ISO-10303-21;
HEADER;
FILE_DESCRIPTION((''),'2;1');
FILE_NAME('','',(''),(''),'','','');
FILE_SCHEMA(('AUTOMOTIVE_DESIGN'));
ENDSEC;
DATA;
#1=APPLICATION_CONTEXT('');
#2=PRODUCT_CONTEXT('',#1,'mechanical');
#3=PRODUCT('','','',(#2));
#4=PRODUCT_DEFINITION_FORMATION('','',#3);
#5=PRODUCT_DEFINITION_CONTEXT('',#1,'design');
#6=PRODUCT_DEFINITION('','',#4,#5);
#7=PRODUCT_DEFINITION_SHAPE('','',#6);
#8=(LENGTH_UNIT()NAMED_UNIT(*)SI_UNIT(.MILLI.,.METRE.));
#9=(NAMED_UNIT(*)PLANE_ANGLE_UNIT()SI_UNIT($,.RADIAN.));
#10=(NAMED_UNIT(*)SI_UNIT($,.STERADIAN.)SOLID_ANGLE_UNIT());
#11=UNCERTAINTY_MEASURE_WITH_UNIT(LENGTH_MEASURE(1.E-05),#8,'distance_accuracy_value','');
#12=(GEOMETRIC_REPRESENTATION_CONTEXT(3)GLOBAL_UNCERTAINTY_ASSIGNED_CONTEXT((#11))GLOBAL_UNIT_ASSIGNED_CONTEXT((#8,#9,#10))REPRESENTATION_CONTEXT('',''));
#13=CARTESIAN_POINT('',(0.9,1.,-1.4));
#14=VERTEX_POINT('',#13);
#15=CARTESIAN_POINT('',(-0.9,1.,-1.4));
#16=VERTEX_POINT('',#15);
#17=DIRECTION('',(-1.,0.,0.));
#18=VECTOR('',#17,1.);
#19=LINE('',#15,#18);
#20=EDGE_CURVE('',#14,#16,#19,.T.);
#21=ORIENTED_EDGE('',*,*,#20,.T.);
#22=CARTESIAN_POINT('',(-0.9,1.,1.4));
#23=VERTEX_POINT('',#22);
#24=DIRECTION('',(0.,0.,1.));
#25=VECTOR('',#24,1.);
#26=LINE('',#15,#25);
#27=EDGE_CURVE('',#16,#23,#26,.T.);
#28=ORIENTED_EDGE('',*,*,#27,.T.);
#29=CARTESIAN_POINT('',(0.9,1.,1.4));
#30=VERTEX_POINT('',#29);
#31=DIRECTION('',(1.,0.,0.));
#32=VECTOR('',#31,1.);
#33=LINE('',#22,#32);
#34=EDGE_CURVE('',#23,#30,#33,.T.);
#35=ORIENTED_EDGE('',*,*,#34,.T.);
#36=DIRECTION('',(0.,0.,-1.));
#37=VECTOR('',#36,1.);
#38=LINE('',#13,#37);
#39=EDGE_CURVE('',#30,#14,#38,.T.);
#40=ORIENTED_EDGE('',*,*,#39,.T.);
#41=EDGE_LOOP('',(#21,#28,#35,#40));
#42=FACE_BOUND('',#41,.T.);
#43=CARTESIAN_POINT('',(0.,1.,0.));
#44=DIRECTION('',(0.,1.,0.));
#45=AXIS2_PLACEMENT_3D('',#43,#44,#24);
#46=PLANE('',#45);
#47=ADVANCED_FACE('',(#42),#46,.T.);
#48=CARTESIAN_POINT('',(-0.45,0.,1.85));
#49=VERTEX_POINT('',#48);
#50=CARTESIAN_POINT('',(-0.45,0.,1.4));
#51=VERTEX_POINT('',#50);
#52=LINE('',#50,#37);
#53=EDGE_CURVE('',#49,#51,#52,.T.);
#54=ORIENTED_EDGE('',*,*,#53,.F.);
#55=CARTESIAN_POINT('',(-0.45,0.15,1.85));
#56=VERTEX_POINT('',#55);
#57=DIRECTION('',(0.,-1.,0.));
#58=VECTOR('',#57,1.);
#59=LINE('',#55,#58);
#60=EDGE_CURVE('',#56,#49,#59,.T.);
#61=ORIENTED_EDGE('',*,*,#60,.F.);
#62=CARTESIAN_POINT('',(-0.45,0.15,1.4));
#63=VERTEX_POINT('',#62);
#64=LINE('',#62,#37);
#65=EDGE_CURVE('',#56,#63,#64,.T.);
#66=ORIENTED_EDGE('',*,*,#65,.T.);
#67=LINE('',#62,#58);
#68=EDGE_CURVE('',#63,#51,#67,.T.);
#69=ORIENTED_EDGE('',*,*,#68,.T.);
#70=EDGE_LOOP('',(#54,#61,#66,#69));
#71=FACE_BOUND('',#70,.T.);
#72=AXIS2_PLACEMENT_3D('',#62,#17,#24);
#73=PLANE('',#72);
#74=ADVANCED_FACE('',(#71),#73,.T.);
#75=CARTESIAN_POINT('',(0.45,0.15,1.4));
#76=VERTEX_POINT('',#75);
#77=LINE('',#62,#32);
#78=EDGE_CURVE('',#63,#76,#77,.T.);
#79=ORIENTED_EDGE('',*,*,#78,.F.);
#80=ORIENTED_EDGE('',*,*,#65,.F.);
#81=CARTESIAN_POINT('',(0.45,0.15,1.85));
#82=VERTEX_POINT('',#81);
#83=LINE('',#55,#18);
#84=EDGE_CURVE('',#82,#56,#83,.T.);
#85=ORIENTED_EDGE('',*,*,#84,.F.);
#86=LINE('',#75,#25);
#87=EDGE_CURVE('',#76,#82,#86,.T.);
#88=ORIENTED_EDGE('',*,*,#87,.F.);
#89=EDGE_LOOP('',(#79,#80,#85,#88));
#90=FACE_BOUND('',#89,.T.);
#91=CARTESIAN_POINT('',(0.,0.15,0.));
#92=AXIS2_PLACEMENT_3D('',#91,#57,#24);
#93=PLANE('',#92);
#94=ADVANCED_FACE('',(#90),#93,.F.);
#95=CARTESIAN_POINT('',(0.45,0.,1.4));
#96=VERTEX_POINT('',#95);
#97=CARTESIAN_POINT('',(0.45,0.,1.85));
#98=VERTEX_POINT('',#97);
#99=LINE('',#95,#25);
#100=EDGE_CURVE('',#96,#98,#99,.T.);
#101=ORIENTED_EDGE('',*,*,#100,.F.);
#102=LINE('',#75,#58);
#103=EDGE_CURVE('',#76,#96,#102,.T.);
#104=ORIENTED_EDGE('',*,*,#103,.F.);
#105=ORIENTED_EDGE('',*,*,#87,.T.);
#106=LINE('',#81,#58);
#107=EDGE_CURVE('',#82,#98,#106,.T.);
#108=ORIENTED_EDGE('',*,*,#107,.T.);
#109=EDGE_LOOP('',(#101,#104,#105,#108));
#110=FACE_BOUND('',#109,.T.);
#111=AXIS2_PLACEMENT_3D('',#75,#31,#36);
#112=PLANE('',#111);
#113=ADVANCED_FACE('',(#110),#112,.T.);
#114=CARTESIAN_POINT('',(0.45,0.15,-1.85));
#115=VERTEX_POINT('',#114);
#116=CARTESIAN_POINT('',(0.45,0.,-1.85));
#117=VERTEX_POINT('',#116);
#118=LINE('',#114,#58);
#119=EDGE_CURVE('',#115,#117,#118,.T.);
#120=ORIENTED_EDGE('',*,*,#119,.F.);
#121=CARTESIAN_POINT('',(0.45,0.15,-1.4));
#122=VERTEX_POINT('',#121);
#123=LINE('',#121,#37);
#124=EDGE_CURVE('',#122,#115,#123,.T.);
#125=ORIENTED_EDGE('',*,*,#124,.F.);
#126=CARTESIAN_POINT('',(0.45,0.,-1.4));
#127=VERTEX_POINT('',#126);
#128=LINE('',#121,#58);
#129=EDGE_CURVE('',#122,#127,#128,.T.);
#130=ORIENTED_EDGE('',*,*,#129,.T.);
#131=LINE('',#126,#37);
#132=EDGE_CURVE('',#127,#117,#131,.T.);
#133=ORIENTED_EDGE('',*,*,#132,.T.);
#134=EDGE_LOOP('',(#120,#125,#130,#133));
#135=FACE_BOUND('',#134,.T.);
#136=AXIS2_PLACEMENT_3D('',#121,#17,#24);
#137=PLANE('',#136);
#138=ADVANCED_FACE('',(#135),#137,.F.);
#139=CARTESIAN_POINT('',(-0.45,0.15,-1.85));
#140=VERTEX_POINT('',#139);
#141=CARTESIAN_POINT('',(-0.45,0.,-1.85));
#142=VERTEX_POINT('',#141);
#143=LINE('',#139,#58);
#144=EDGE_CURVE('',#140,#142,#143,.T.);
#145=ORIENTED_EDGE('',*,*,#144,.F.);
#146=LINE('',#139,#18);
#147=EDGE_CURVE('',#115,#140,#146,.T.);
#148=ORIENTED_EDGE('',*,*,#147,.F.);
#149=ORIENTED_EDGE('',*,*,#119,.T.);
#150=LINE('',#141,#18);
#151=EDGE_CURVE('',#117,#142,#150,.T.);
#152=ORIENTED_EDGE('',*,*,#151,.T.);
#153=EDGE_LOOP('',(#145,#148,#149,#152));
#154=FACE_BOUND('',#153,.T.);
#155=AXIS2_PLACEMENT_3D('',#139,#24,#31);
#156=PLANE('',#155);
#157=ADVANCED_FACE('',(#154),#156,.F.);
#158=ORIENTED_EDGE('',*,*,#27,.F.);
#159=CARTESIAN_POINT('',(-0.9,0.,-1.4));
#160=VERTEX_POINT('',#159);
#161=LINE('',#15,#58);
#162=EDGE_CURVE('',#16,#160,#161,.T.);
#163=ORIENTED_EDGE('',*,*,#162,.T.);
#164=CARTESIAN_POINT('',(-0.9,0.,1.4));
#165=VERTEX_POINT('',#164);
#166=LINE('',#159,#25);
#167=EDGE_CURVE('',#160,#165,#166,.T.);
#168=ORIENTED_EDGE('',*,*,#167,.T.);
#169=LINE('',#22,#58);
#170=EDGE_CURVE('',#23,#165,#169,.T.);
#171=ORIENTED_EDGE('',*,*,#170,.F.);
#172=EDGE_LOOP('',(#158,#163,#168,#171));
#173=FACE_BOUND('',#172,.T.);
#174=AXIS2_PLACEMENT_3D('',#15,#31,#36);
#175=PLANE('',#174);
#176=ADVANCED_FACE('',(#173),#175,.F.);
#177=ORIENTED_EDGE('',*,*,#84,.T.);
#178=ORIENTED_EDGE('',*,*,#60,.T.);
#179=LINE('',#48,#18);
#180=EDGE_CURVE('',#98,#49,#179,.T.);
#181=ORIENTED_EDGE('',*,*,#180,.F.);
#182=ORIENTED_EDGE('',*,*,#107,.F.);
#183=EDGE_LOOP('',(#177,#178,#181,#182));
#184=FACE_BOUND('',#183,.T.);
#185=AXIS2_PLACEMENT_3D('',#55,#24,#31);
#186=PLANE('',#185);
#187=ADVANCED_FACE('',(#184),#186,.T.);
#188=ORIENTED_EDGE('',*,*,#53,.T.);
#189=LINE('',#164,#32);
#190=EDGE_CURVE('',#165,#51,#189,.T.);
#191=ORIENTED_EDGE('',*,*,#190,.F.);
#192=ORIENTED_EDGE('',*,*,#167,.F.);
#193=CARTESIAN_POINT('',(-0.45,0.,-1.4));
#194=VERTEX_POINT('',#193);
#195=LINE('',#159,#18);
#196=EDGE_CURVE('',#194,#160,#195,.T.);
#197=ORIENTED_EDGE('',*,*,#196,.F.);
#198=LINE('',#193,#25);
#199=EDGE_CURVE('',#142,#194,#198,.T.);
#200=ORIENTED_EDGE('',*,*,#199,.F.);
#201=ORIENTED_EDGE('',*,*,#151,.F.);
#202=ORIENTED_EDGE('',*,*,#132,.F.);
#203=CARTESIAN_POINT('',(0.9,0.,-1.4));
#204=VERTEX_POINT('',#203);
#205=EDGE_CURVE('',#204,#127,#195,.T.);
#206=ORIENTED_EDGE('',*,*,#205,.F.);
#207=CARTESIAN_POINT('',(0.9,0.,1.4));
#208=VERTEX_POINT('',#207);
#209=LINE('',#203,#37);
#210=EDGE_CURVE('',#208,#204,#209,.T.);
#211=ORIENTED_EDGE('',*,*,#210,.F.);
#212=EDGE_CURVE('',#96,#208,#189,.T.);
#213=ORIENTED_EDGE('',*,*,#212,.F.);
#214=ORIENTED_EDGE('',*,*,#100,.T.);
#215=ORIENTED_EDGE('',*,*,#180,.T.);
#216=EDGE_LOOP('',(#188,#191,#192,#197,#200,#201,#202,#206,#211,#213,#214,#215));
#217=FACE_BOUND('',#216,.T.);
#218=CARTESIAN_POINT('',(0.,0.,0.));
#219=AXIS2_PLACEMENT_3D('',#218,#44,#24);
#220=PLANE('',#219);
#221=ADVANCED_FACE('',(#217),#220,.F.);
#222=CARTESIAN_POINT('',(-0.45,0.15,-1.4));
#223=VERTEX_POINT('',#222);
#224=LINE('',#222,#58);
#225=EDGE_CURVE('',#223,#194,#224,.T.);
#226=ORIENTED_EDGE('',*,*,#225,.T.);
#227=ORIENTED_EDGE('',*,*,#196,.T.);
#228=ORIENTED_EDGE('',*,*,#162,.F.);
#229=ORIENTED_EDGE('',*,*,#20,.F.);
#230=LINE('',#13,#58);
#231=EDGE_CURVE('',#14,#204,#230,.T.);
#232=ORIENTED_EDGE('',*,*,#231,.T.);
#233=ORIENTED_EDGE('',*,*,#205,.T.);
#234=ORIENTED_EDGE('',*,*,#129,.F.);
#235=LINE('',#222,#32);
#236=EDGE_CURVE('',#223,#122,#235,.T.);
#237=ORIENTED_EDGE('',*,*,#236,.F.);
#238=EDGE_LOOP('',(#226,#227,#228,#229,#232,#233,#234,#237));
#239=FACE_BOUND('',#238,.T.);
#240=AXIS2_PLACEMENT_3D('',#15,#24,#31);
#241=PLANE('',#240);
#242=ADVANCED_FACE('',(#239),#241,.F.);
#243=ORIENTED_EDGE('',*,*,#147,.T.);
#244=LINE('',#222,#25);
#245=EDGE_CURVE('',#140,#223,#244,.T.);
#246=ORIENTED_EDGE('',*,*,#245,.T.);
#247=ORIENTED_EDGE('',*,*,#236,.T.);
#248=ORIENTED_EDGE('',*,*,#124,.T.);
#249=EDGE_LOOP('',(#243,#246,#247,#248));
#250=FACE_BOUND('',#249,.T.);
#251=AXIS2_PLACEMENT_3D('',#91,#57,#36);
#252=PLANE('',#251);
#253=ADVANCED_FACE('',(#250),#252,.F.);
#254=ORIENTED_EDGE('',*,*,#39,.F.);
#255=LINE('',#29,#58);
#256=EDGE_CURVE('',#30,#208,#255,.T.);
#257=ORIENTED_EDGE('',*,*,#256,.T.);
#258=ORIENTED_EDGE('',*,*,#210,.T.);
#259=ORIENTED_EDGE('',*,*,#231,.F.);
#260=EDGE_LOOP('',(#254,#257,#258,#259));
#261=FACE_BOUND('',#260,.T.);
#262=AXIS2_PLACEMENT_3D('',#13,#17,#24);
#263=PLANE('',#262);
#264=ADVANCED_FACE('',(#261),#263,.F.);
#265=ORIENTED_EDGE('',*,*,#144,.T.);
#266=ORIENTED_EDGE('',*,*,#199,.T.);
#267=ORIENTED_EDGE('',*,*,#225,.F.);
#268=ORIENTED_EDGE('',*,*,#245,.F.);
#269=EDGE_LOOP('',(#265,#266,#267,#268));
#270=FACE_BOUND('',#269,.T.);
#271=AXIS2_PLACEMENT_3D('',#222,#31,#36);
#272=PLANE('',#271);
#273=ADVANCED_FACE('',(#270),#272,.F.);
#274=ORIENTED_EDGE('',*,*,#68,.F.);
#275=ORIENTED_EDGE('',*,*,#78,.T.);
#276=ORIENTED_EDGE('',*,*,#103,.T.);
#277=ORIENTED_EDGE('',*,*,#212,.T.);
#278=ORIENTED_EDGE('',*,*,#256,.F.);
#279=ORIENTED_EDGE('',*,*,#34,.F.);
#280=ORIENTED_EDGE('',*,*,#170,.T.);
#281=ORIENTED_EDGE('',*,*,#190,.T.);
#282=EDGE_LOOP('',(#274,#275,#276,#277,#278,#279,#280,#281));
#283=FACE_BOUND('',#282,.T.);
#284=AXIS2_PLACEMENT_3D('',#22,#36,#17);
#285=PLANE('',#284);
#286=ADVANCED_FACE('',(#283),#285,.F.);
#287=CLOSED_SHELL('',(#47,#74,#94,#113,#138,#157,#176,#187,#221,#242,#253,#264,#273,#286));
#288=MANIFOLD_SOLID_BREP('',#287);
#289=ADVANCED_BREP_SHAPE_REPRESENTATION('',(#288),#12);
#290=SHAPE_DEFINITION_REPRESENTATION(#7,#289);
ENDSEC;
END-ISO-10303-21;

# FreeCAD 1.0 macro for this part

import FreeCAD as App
import Part
import Sketcher
Q = App.Units.Quantity

doc = App.newDocument("Part")
params = doc.addObject("Spreadsheet::Sheet", "Params")
for row, (alias, value) in enumerate([
    ("sketch1_width", "1.8 mm"),
    ("sketch1_height", "2.8 mm"),
    ("pad1_length", "1 mm"),
    ("sketch2_width", "0.9 mm"),
    ("sketch2_height", "0.45 mm"),
    ("pad2_length", "0.15 mm"),
], start=1):
    params.set(f"A{row}", alias)
    params.set(f"B{row}", "=" + value)
    params.setAlias(f"B{row}", alias)

body = doc.addObject("PartDesign::Body", "Body")

# Sketch on XZ plane
sketch1 = doc.addObject("Sketcher::SketchObject", "Sketch")
body.addObject(sketch1)
sketch1.AttachmentSupport = (doc.XZ_Plane, [""])
sketch1.MapMode = "FlatFace"
sketch1.addGeometry(Part.LineSegment(App.Vector(-0.9, -1.4, 0), App.Vector(-0.9, 1.4, 0)), False)
sketch1.addGeometry(Part.LineSegment(App.Vector(-0.9, 1.4, 0), App.Vector(0.9, 1.4, 0)), False)
sketch1.addGeometry(Part.LineSegment(App.Vector(0.9, 1.4, 0), App.Vector(0.9, -1.4, 0)), False)
sketch1.addGeometry(Part.LineSegment(App.Vector(0.9, -1.4, 0), App.Vector(-0.9, -1.4, 0)), False)
sketch1.addConstraint(Sketcher.Constraint("Coincident", 0, 2, 1, 1))
sketch1.addConstraint(Sketcher.Constraint("Coincident", 1, 2, 2, 1))
sketch1.addConstraint(Sketcher.Constraint("Coincident", 2, 2, 3, 1))
sketch1.addConstraint(Sketcher.Constraint("Coincident", 3, 2, 0, 1))
sketch1.addConstraint(Sketcher.Constraint("Vertical", 0))
sketch1.addConstraint(Sketcher.Constraint("Horizontal", 1))
sketch1.addConstraint(Sketcher.Constraint("Vertical", 2))
sketch1.addConstraint(Sketcher.Constraint("Horizontal", 3))
sketch1.addConstraint(Sketcher.Constraint("Symmetric", 0, 2, 2, 2, -1, 1))
sketch1.addConstraint(Sketcher.Constraint("DistanceX", 1, 1, 1, 2, Q("1.8 mm")))
sketch1.addConstraint(Sketcher.Constraint("DistanceY", 0, 1, 0, 2, Q("2.8 mm")))
sketch1.setExpression("Constraints[9]", "Params.sketch1_width")
sketch1.setExpression("Constraints[10]", "Params.sketch1_height")
pad1 = doc.addObject("PartDesign::Pad", "Pad")
body.addObject(pad1)
pad1.Profile = sketch1
pad1.setExpression("Length", "Params.pad1_length")
pad1.Reversed = True

# Sketch on XZ plane
sketch2 = doc.addObject("Sketcher::SketchObject", "Sketch001")
body.addObject(sketch2)
sketch2.AttachmentSupport = (doc.XZ_Plane, [""])
sketch2.MapMode = "FlatFace"
sketch2.addGeometry(Part.LineSegment(App.Vector(-0.45, -1.85, 0), App.Vector(-0.45, -1.4, 0)), False)
sketch2.addGeometry(Part.LineSegment(App.Vector(-0.45, -1.4, 0), App.Vector(0.45, -1.4, 0)), False)
sketch2.addGeometry(Part.LineSegment(App.Vector(0.45, -1.4, 0), App.Vector(0.45, -1.85, 0)), False)
sketch2.addGeometry(Part.LineSegment(App.Vector(0.45, -1.85, 0), App.Vector(-0.45, -1.85, 0)), False)
sketch2.addConstraint(Sketcher.Constraint("Coincident", 0, 2, 1, 1))
sketch2.addConstraint(Sketcher.Constraint("Coincident", 1, 2, 2, 1))
sketch2.addConstraint(Sketcher.Constraint("Coincident", 2, 2, 3, 1))
sketch2.addConstraint(Sketcher.Constraint("Coincident", 3, 2, 0, 1))
sketch2.addConstraint(Sketcher.Constraint("Vertical", 0))
sketch2.addConstraint(Sketcher.Constraint("Horizontal", 1))
sketch2.addConstraint(Sketcher.Constraint("Vertical", 2))
sketch2.addConstraint(Sketcher.Constraint("Horizontal", 3))
sketch2.addConstraint(Sketcher.Constraint("DistanceX", 1, 1, 1, 2, Q("0.9 mm")))
sketch2.addConstraint(Sketcher.Constraint("DistanceY", 0, 1, 0, 2, Q("0.45 mm")))
sketch2.addConstraint(Sketcher.Constraint("DistanceY", 0, 2, -1, 1, Q("1.4 mm")))
sketch2.addConstraint(Sketcher.Constraint("DistanceX", 0, 2, -1, 1, Q("0.45 mm")))
sketch2.setExpression("Constraints[8]", "Params.sketch2_width")
sketch2.setExpression("Constraints[9]", "Params.sketch2_height")
pad2 = doc.addObject("PartDesign::Pad", "Pad001")
body.addObject(pad2)
pad2.Profile = sketch2
pad2.setExpression("Length", "Params.pad2_length")
pad2.Reversed = True
doc.recompute()

mirrored = doc.addObject("PartDesign::Mirrored", "Mirrored")
body.addObject(mirrored)
mirrored.Originals = [pad2]
mirrored.MirrorPlane = (doc.XY_Plane, [""])
body.Tip = mirrored

doc.recompute()
